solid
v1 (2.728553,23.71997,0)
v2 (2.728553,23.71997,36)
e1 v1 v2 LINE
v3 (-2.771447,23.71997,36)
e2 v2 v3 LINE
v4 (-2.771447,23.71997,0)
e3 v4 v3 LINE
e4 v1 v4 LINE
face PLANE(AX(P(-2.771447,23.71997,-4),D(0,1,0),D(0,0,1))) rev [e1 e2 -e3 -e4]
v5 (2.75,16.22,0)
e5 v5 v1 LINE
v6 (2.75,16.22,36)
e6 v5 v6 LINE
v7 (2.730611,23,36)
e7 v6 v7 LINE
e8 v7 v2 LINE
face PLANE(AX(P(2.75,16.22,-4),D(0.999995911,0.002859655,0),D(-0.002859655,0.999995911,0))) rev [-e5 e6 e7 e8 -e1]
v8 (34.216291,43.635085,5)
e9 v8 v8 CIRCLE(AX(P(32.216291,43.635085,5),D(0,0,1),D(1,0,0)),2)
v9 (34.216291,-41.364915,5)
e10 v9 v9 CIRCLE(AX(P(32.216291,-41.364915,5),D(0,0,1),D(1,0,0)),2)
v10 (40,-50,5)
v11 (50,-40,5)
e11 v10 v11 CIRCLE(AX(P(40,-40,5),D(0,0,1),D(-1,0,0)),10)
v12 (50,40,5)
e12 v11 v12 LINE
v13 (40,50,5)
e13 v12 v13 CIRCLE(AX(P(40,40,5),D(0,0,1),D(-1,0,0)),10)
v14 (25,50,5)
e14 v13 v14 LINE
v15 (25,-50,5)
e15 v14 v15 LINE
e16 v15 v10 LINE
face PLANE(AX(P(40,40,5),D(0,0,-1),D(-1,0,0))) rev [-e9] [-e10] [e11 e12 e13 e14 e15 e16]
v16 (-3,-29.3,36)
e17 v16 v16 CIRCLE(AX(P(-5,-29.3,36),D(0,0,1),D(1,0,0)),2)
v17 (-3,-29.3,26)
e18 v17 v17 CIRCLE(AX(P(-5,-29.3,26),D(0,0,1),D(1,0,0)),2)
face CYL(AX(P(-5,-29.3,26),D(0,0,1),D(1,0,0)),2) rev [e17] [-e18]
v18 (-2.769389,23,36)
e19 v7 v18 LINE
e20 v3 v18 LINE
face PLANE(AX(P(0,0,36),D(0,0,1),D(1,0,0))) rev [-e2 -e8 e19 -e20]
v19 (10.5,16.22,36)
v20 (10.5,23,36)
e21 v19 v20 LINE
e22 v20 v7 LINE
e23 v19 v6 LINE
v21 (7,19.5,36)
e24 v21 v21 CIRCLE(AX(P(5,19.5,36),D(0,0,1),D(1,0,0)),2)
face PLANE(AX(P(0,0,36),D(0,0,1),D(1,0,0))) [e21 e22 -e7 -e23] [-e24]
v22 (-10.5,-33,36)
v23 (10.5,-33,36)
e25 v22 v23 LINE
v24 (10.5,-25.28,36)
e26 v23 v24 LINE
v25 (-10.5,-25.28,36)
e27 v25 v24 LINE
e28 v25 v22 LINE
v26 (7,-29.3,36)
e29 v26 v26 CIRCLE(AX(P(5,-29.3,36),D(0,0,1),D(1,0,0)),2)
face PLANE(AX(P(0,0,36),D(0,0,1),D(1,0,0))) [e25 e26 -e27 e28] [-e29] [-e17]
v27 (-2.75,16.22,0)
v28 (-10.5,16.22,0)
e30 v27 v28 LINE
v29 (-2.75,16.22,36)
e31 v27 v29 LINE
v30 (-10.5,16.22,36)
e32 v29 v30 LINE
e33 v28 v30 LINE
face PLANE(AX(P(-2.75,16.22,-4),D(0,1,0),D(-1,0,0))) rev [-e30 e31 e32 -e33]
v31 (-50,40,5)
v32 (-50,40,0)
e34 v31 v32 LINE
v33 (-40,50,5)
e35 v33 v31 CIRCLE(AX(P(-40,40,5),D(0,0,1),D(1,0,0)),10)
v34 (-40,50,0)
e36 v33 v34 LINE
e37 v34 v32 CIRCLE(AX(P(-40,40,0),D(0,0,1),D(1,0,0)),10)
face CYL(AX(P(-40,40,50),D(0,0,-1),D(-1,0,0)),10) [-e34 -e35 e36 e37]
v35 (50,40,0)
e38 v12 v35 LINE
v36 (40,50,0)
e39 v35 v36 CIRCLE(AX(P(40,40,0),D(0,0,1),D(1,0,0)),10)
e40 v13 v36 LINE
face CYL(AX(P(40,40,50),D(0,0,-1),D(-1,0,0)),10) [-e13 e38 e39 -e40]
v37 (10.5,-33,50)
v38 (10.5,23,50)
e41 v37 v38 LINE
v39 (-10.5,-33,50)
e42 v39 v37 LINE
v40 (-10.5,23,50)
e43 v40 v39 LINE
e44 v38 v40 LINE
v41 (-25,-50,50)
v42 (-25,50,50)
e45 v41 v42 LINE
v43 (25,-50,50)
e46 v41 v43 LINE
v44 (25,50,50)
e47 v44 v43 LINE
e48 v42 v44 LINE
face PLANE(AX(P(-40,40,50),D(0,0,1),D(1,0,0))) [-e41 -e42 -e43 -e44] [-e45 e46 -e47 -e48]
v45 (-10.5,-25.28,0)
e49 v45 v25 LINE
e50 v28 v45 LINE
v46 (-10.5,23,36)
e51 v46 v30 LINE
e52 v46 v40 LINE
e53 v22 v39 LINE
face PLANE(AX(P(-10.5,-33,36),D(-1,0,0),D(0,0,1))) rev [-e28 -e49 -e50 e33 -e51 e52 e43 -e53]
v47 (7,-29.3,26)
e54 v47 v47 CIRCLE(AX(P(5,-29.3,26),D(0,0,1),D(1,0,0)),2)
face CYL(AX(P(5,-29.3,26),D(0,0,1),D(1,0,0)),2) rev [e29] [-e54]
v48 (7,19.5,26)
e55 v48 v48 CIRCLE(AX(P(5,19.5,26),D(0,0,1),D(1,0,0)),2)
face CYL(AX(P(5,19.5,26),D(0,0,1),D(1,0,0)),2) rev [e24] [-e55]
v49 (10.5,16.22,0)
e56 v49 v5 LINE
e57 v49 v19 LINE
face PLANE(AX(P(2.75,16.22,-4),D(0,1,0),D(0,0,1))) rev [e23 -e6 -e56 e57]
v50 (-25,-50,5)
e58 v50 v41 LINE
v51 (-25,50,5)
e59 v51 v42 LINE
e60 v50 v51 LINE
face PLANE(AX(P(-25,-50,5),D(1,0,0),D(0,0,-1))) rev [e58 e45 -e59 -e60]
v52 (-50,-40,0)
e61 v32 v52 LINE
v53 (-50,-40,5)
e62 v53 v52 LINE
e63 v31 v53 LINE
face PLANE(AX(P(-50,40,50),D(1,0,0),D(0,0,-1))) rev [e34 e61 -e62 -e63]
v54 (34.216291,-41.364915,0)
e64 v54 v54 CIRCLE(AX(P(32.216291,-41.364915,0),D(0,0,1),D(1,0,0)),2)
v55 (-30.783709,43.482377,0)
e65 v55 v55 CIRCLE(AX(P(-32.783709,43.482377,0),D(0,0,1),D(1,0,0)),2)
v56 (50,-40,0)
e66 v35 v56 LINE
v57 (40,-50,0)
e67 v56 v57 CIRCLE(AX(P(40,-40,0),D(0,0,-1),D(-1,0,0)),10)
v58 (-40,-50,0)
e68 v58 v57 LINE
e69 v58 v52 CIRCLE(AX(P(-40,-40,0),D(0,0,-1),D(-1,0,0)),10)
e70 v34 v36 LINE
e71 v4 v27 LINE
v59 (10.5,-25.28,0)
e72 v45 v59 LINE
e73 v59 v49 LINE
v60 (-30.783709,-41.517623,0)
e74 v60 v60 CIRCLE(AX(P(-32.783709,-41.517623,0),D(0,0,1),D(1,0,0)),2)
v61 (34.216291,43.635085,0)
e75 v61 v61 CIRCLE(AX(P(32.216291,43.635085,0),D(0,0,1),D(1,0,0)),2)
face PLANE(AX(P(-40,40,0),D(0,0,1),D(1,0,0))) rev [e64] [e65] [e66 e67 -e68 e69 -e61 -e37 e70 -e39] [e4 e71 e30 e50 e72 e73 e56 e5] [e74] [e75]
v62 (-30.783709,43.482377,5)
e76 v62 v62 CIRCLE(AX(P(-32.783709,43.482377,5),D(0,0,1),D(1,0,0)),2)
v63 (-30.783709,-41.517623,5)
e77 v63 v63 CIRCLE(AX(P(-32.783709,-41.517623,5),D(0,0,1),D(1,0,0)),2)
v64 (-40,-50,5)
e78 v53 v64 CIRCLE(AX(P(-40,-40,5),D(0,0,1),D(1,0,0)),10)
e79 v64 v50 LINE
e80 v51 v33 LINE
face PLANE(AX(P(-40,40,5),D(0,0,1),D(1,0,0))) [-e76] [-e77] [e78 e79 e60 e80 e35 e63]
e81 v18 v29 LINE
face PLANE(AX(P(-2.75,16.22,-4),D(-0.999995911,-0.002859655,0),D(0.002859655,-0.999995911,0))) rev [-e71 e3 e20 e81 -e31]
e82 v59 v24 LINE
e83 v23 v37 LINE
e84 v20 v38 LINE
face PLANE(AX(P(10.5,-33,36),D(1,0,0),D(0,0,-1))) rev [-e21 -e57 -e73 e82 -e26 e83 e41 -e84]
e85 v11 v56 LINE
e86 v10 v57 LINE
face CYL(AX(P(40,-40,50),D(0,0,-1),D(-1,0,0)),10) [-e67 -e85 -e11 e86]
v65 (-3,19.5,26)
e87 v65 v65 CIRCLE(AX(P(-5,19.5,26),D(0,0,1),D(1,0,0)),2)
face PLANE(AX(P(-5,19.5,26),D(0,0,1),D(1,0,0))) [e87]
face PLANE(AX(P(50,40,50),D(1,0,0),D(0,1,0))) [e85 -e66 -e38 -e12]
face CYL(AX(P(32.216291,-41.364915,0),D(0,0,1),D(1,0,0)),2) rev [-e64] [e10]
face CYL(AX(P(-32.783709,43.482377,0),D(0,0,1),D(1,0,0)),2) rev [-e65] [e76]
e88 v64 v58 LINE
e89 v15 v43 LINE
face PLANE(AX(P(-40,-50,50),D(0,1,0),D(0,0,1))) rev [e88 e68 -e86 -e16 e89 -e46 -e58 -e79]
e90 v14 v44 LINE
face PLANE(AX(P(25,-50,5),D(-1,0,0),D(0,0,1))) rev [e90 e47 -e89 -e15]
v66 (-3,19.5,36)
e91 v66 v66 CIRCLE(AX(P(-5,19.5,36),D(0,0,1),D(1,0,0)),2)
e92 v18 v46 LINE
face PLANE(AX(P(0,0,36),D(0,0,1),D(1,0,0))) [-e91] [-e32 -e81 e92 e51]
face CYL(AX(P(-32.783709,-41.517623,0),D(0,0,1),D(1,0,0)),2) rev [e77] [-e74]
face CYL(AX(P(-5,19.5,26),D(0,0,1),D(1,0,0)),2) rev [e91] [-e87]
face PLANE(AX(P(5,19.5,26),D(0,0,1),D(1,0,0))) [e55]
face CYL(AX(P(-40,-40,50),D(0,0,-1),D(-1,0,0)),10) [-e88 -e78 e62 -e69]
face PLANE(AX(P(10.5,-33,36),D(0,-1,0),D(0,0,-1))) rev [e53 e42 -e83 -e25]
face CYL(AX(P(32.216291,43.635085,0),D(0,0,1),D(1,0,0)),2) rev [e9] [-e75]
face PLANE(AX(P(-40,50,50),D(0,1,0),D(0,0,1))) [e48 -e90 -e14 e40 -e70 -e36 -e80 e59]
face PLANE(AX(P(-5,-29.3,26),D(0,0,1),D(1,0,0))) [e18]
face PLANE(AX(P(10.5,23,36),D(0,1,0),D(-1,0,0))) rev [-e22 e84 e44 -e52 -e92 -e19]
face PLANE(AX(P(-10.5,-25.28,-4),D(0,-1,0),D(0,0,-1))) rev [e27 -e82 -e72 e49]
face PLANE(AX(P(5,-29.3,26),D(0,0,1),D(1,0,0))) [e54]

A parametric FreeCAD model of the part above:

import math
import FreeCAD as App
import Part
import Sketcher
from FreeCAD import Vector
Q = App.Units.Quantity

doc = App.newDocument("Part")
params = doc.addObject("Spreadsheet::Sheet", "Params")
for row, (alias, value) in enumerate([
    ("sketch1_radius", "10 mm"),
    ("sketch1_width", "80 mm"),
    ("pad1_length", "50 mm"),
    ("sketch2_width", "21 mm"),
    ("sketch2_height", "56 mm"),
    ("pocket1_length", "14 mm"),
    ("sketch3_width", "21 mm"),
    ("sketch3_width2", "5.5 mm"),
    ("sketch3_height", "41.5 mm"),
    ("sketch3_length", "7.5 mm"),
    ("pocket2_length", "40 mm"),
    ("sketch4_radius", "10 mm"),
    ("sketch4_width", "15 mm"),
    ("sketch4_height", "80 mm"),
    ("pocket3_length", "45 mm"),
    ("sketch5_diameter", "4 mm"),
    ("pocket4_length", "10 mm"),
    ("sketch6_diameter", "4 mm"),
    ("pocket5_length", "5 mm"),
], start=1):
    params.set(f"A{row}", alias)
    params.set(f"B{row}", "=" + value)
    params.setAlias(f"B{row}", alias)

body = doc.addObject("PartDesign::Body", "Body")

# Sketch on XY plane
sketch1 = body.newObject("Sketcher::SketchObject", "Sketch")
sketch1.AttachmentSupport = (doc.getObject("XY_Plane"), [""])
sketch1.MapMode = "FlatFace"
sketch1.addGeometry([
    Part.LineSegment(Vector(40, 50, 0), Vector(-40, 50, 0)),  # 0
    Part.ArcOfCircle(Part.Circle(Vector(-40, 40, 0), Vector(0, 0, 1), 10), math.radians(90), math.radians(180)),  # 1
    Part.LineSegment(Vector(-50, 40, 0), Vector(-50, -40, 0)),  # 2
    Part.ArcOfCircle(Part.Circle(Vector(-40, -40, 0), Vector(0, 0, 1), 10), math.radians(180), math.radians(270)),  # 3
    Part.LineSegment(Vector(-40, -50, 0), Vector(40, -50, 0)),  # 4
    Part.ArcOfCircle(Part.Circle(Vector(40, -40, 0), Vector(0, 0, 1), 10), math.radians(-90), math.radians(0)),  # 5
    Part.LineSegment(Vector(50, -40, 0), Vector(50, 40, 0)),  # 6
    Part.ArcOfCircle(Part.Circle(Vector(40, 40, 0), Vector(0, 0, 1), 10), math.radians(0), math.radians(90)),  # 7
], False)
sketch1.addConstraint([
    Sketcher.Constraint("Tangent", 0, 2, 1, 1),
    Sketcher.Constraint("Tangent", 1, 2, 2, 1),
    Sketcher.Constraint("Tangent", 2, 2, 3, 1),
    Sketcher.Constraint("Tangent", 3, 2, 4, 1),
    Sketcher.Constraint("Tangent", 4, 2, 5, 1),
    Sketcher.Constraint("Tangent", 5, 2, 6, 1),
    Sketcher.Constraint("Tangent", 6, 2, 7, 1),
    Sketcher.Constraint("Tangent", 7, 2, 0, 1),
    Sketcher.Constraint("Horizontal", 0),
    Sketcher.Constraint("Vertical", 2),
    Sketcher.Constraint("Horizontal", 4),
    Sketcher.Constraint("Vertical", 6),
    Sketcher.Constraint("Equal", 1, 3),
    Sketcher.Constraint("Equal", 3, 5),
    Sketcher.Constraint("Equal", 5, 7),
    Sketcher.Constraint("Symmetric", 1, 3, 5, 3, -1, 1),
    Sketcher.Constraint("Equal", 4, 2),
    Sketcher.Constraint("Radius", 1, Q("10 mm")),
    Sketcher.Constraint("DistanceX", 0, 2, 0, 1, Q("80 mm")),
])
sketch1.setExpression("Constraints[17]", "Params.sketch1_radius")
sketch1.setExpression("Constraints[18]", "Params.sketch1_width")
pad1 = body.newObject("PartDesign::Pad", "Pad")
pad1.Profile = sketch1
pad1.setExpression("Length", "Params.pad1_length")

# Sketch on XY plane
sketch2 = body.newObject("Sketcher::SketchObject", "Sketch001")
sketch2.AttachmentSupport = (doc.getObject("XY_Plane"), [""])
sketch2.MapMode = "FlatFace"
sketch2.AttachmentOffset = App.Placement(Vector(0, 0, 50), App.Rotation())
sketch2.addGeometry([
    Part.LineSegment(Vector(-10.5, 23, 0), Vector(-10.5, -33, 0)),
    Part.LineSegment(Vector(-10.5, -33, 0), Vector(10.5, -33, 0)),
    Part.LineSegment(Vector(10.5, -33, 0), Vector(10.5, 23, 0)),
    Part.LineSegment(Vector(10.5, 23, 0), Vector(-10.5, 23, 0)),
], False)
sketch2.addConstraint([
    Sketcher.Constraint("Coincident", 0, 2, 1, 1),
    Sketcher.Constraint("Coincident", 1, 2, 2, 1),
    Sketcher.Constraint("Coincident", 2, 2, 3, 1),
    Sketcher.Constraint("Coincident", 3, 2, 0, 1),
    Sketcher.Constraint("Vertical", 0),
    Sketcher.Constraint("Horizontal", 1),
    Sketcher.Constraint("Vertical", 2),
    Sketcher.Constraint("Horizontal", 3),
    Sketcher.Constraint("DistanceX", 1, 1, 1, 2, Q("21 mm")),
    Sketcher.Constraint("DistanceY", 0, 2, 0, 1, Q("56 mm")),
    Sketcher.Constraint("DistanceY", 0, 2, -1, 1, Q("33 mm")),
    Sketcher.Constraint("DistanceX", 0, 2, -1, 1, Q("10.5 mm")),
])
sketch2.setExpression("Constraints[8]", "Params.sketch2_width")
sketch2.setExpression("Constraints[9]", "Params.sketch2_height")
pocket1 = body.newObject("PartDesign::Pocket", "Pocket")
pocket1.Profile = sketch2
pocket1.setExpression("Length", "Params.pocket1_length")

# Sketch on XY plane
sketch3 = body.newObject("Sketcher::SketchObject", "Sketch002")
sketch3.AttachmentSupport = (doc.getObject("XY_Plane"), [""])
sketch3.MapMode = "FlatFace"
sketch3.AttachmentOffset = App.Placement(Vector(0, 0, 36), App.Rotation())
sketch3.addGeometry([
    Part.LineSegment(Vector(-10.5, 16.22, 0), Vector(-10.5, -25.28, 0)),  # 0
    Part.LineSegment(Vector(-10.5, -25.28, 0), Vector(10.5, -25.28, 0)),  # 1
    Part.LineSegment(Vector(10.5, -25.28, 0), Vector(10.5, 16.22, 0)),  # 2
    Part.LineSegment(Vector(10.5, 16.22, 0), Vector(2.75, 16.22, 0)),  # 3
    Part.LineSegment(Vector(2.75, 16.22, 0), Vector(2.728553, 23.71997, 0)),  # 4
    Part.LineSegment(Vector(2.728553, 23.71997, 0), Vector(-2.771447, 23.71997, 0)),  # 5
    Part.LineSegment(Vector(-2.771447, 23.71997, 0), Vector(-2.75, 16.22, 0)),  # 6
    Part.LineSegment(Vector(-2.75, 16.22, 0), Vector(-10.5, 16.22, 0)),  # 7
], False)
sketch3.addConstraint([
    Sketcher.Constraint("Coincident", 0, 2, 1, 1),
    Sketcher.Constraint("Coincident", 1, 2, 2, 1),
    Sketcher.Constraint("Coincident", 2, 2, 3, 1),
    Sketcher.Constraint("Coincident", 3, 2, 4, 1),
    Sketcher.Constraint("Coincident", 4, 2, 5, 1),
    Sketcher.Constraint("Coincident", 5, 2, 6, 1),
    Sketcher.Constraint("Coincident", 6, 2, 7, 1),
    Sketcher.Constraint("Coincident", 7, 2, 0, 1),
    Sketcher.Constraint("Vertical", 0),
    Sketcher.Constraint("Horizontal", 1),
    Sketcher.Constraint("Vertical", 2),
    Sketcher.Constraint("Horizontal", 3),
    Sketcher.Constraint("Horizontal", 5),
    Sketcher.Constraint("Horizontal", 7),
    Sketcher.Constraint("Symmetric", 3, 2, 6, 2, -2),
    Sketcher.Constraint("Parallel", 4, 6),
    Sketcher.Constraint("Equal", 3, 7),
    Sketcher.Constraint("DistanceX", 1, 1, 1, 2, Q("21 mm")),
    Sketcher.Constraint("DistanceX", 5, 2, 5, 1, Q("5.5 mm")),
    Sketcher.Constraint("DistanceY", 0, 2, 0, 1, Q("41.5 mm")),
    Sketcher.Constraint("Distance", 4, Q("7.5 mm")),
    Sketcher.Constraint("DistanceY", 0, 2, -1, 1, Q("25.28 mm")),
    Sketcher.Constraint("DistanceX", -1, 1, 4, 2, Q("2.728553 mm")),
])
sketch3.setExpression("Constraints[17]", "Params.sketch3_width")
sketch3.setExpression("Constraints[18]", "Params.sketch3_width2")
sketch3.setExpression("Constraints[19]", "Params.sketch3_height")
sketch3.setExpression("Constraints[20]", "Params.sketch3_length")
pocket2 = body.newObject("PartDesign::Pocket", "Pocket001")
pocket2.Profile = sketch3
pocket2.setExpression("Length", "Params.pocket2_length")

# Sketch on XY plane
sketch4 = body.newObject("Sketcher::SketchObject", "Sketch003")
sketch4.AttachmentSupport = (doc.getObject("XY_Plane"), [""])
sketch4.MapMode = "FlatFace"
sketch4.AttachmentOffset = App.Placement(Vector(0, 0, 5), App.Rotation())
sketch4.addGeometry([
    Part.LineSegment(Vector(25, -50, 0), Vector(40, -50, 0)),  # 0
    Part.ArcOfCircle(Part.Circle(Vector(40, -40, 0), Vector(0, 0, 1), 10), math.radians(-90), math.radians(0)),  # 1
    Part.LineSegment(Vector(50, -40, 0), Vector(50, 40, 0)),  # 2
    Part.ArcOfCircle(Part.Circle(Vector(40, 40, 0), Vector(0, 0, 1), 10), math.radians(0), math.radians(90)),  # 3
    Part.LineSegment(Vector(40, 50, 0), Vector(25, 50, 0)),  # 4
    Part.LineSegment(Vector(25, 50, 0), Vector(25, -50, 0)),  # 5
    Part.LineSegment(Vector(-40, -50, 0), Vector(-25, -50, 0)),  # 6
    Part.LineSegment(Vector(-25, -50, 0), Vector(-25, 50, 0)),  # 7
    Part.LineSegment(Vector(-25, 50, 0), Vector(-40, 50, 0)),  # 8
    Part.ArcOfCircle(Part.Circle(Vector(-40, 40, 0), Vector(0, 0, 1), 10), math.radians(90), math.radians(180)),  # 9
    Part.LineSegment(Vector(-50, 40, 0), Vector(-50, -40, 0)),  # 10
    Part.ArcOfCircle(Part.Circle(Vector(-40, -40, 0), Vector(0, 0, 1), 10), math.radians(180), math.radians(270)),  # 11
], False)
sketch4.addConstraint([
    Sketcher.Constraint("Tangent", 0, 2, 1, 1),
    Sketcher.Constraint("Tangent", 1, 2, 2, 1),
    Sketcher.Constraint("Tangent", 2, 2, 3, 1),
    Sketcher.Constraint("Tangent", 3, 2, 4, 1),
    Sketcher.Constraint("Coincident", 4, 2, 5, 1),
    Sketcher.Constraint("Coincident", 5, 2, 0, 1),
    Sketcher.Constraint("Coincident", 6, 2, 7, 1),
    Sketcher.Constraint("Coincident", 7, 2, 8, 1),
    Sketcher.Constraint("Tangent", 8, 2, 9, 1),
    Sketcher.Constraint("Tangent", 9, 2, 10, 1),
    Sketcher.Constraint("Tangent", 10, 2, 11, 1),
    Sketcher.Constraint("Tangent", 11, 2, 6, 1),
    Sketcher.Constraint("Horizontal", 0),
    Sketcher.Constraint("Vertical", 2),
    Sketcher.Constraint("Horizontal", 4),
    Sketcher.Constraint("Vertical", 5),
    Sketcher.Constraint("Horizontal", 6),
    Sketcher.Constraint("Vertical", 7),
    Sketcher.Constraint("Horizontal", 8),
    Sketcher.Constraint("Vertical", 10),
    Sketcher.Constraint("Equal", 1, 3),
    Sketcher.Constraint("Equal", 3, 9),
    Sketcher.Constraint("Equal", 9, 11),
    Sketcher.Constraint("Symmetric", 1, 3, 9, 3, -1, 1),
    Sketcher.Constraint("Symmetric", 4, 2, 6, 2, -1, 1),
    Sketcher.Constraint("Horizontal", 3, 3, 9, 3),
    Sketcher.Constraint("Radius", 1, Q("10 mm")),
    Sketcher.Constraint("DistanceX", 0, 1, 0, 2, Q("15 mm")),
    Sketcher.Constraint("DistanceY", 2, 1, 2, 2, Q("80 mm")),
    Sketcher.Constraint("DistanceX", -1, 1, 1, 3, Q("40 mm")),
])
sketch4.setExpression("Constraints[26]", "Params.sketch4_radius")
sketch4.setExpression("Constraints[27]", "Params.sketch4_width")
sketch4.setExpression("Constraints[28]", "Params.sketch4_height")
pocket3 = body.newObject("PartDesign::Pocket", "Pocket002")
pocket3.Profile = sketch4
pocket3.setExpression("Length", "Params.pocket3_length")
pocket3.Reversed = True

# Sketch on XY plane
sketch5 = body.newObject("Sketcher::SketchObject", "Sketch004")
sketch5.AttachmentSupport = (doc.getObject("XY_Plane"), [""])
sketch5.MapMode = "FlatFace"
sketch5.AttachmentOffset = App.Placement(Vector(0, 0, 36), App.Rotation())
sketch5.addGeometry([
    Part.Circle(Vector(-5, 19.5, 0), Vector(0, 0, 1), 2),
    Part.Circle(Vector(5, 19.5, 0), Vector(0, 0, 1), 2),
    Part.Circle(Vector(-5, -29.3, 0), Vector(0, 0, 1), 2),
    Part.Circle(Vector(5, -29.3, 0), Vector(0, 0, 1), 2),
], False)
sketch5.addConstraint([
    Sketcher.Constraint("Equal", 0, 1),
    Sketcher.Constraint("Equal", 1, 2),
    Sketcher.Constraint("Equal", 2, 3),
    Sketcher.Constraint("Symmetric", 0, 3, 1, 3, -2),
    Sketcher.Constraint("Symmetric", 2, 3, 3, 3, -2),
    Sketcher.Constraint("Vertical", 0, 3, 2, 3),
    Sketcher.Constraint("Diameter", 0, Q("4 mm")),
    Sketcher.Constraint("DistanceX", 0, 3, -1, 1, Q("5 mm")),
    Sketcher.Constraint("DistanceY", -1, 1, 0, 3, Q("19.5 mm")),
    Sketcher.Constraint("DistanceY", 2, 3, -1, 1, Q("29.3 mm")),
])
sketch5.setExpression("Constraints[6]", "Params.sketch5_diameter")
pocket4 = body.newObject("PartDesign::Pocket", "Pocket003")
pocket4.Profile = sketch5
pocket4.setExpression("Length", "Params.pocket4_length")

# Sketch on XY plane
sketch6 = body.newObject("Sketcher::SketchObject", "Sketch005")
sketch6.AttachmentSupport = (doc.getObject("XY_Plane"), [""])
sketch6.MapMode = "FlatFace"
sketch6.AttachmentOffset = App.Placement(Vector(0, 0, 5), App.Rotation())
sketch6.addGeometry([
    Part.Circle(Vector(-32.783709, 43.482377, 0), Vector(0, 0, 1), 2),
    Part.Circle(Vector(-32.783709, -41.517623, 0), Vector(0, 0, 1), 2),
    Part.Circle(Vector(32.216291, -41.364915, 0), Vector(0, 0, 1), 2),
    Part.Circle(Vector(32.216291, 43.635085, 0), Vector(0, 0, 1), 2),
], False)
sketch6.addConstraint([
    Sketcher.Constraint("Equal", 0, 1),
    Sketcher.Constraint("Equal", 1, 2),
    Sketcher.Constraint("Equal", 2, 3),
    Sketcher.Constraint("Vertical", 0, 3, 1, 3),
    Sketcher.Constraint("Vertical", 2, 3, 3, 3),
    Sketcher.Constraint("Diameter", 0, Q("4 mm")),
    Sketcher.Constraint("DistanceY", 1, 3, 0, 3, Q("85 mm")),
    Sketcher.Constraint("DistanceX", 1, 3, 2, 3, Q("65 mm")),
    Sketcher.Constraint("DistanceY", 2, 3, 3, 3, Q("85 mm")),
    Sketcher.Constraint("DistanceX", 0, 3, -1, 1, Q("32.783709 mm")),
    Sketcher.Constraint("DistanceY", 1, 3, 2, 3, Q("0.152708 mm")),
    Sketcher.Constraint("DistanceY", -1, 1, 0, 3, Q("43.482377 mm")),
])
sketch6.setExpression("Constraints[5]", "Params.sketch6_diameter")
pocket5 = body.newObject("PartDesign::Pocket", "Pocket004")
pocket5.Profile = sketch6
pocket5.setExpression("Length", "Params.pocket5_length")

doc.recompute()
